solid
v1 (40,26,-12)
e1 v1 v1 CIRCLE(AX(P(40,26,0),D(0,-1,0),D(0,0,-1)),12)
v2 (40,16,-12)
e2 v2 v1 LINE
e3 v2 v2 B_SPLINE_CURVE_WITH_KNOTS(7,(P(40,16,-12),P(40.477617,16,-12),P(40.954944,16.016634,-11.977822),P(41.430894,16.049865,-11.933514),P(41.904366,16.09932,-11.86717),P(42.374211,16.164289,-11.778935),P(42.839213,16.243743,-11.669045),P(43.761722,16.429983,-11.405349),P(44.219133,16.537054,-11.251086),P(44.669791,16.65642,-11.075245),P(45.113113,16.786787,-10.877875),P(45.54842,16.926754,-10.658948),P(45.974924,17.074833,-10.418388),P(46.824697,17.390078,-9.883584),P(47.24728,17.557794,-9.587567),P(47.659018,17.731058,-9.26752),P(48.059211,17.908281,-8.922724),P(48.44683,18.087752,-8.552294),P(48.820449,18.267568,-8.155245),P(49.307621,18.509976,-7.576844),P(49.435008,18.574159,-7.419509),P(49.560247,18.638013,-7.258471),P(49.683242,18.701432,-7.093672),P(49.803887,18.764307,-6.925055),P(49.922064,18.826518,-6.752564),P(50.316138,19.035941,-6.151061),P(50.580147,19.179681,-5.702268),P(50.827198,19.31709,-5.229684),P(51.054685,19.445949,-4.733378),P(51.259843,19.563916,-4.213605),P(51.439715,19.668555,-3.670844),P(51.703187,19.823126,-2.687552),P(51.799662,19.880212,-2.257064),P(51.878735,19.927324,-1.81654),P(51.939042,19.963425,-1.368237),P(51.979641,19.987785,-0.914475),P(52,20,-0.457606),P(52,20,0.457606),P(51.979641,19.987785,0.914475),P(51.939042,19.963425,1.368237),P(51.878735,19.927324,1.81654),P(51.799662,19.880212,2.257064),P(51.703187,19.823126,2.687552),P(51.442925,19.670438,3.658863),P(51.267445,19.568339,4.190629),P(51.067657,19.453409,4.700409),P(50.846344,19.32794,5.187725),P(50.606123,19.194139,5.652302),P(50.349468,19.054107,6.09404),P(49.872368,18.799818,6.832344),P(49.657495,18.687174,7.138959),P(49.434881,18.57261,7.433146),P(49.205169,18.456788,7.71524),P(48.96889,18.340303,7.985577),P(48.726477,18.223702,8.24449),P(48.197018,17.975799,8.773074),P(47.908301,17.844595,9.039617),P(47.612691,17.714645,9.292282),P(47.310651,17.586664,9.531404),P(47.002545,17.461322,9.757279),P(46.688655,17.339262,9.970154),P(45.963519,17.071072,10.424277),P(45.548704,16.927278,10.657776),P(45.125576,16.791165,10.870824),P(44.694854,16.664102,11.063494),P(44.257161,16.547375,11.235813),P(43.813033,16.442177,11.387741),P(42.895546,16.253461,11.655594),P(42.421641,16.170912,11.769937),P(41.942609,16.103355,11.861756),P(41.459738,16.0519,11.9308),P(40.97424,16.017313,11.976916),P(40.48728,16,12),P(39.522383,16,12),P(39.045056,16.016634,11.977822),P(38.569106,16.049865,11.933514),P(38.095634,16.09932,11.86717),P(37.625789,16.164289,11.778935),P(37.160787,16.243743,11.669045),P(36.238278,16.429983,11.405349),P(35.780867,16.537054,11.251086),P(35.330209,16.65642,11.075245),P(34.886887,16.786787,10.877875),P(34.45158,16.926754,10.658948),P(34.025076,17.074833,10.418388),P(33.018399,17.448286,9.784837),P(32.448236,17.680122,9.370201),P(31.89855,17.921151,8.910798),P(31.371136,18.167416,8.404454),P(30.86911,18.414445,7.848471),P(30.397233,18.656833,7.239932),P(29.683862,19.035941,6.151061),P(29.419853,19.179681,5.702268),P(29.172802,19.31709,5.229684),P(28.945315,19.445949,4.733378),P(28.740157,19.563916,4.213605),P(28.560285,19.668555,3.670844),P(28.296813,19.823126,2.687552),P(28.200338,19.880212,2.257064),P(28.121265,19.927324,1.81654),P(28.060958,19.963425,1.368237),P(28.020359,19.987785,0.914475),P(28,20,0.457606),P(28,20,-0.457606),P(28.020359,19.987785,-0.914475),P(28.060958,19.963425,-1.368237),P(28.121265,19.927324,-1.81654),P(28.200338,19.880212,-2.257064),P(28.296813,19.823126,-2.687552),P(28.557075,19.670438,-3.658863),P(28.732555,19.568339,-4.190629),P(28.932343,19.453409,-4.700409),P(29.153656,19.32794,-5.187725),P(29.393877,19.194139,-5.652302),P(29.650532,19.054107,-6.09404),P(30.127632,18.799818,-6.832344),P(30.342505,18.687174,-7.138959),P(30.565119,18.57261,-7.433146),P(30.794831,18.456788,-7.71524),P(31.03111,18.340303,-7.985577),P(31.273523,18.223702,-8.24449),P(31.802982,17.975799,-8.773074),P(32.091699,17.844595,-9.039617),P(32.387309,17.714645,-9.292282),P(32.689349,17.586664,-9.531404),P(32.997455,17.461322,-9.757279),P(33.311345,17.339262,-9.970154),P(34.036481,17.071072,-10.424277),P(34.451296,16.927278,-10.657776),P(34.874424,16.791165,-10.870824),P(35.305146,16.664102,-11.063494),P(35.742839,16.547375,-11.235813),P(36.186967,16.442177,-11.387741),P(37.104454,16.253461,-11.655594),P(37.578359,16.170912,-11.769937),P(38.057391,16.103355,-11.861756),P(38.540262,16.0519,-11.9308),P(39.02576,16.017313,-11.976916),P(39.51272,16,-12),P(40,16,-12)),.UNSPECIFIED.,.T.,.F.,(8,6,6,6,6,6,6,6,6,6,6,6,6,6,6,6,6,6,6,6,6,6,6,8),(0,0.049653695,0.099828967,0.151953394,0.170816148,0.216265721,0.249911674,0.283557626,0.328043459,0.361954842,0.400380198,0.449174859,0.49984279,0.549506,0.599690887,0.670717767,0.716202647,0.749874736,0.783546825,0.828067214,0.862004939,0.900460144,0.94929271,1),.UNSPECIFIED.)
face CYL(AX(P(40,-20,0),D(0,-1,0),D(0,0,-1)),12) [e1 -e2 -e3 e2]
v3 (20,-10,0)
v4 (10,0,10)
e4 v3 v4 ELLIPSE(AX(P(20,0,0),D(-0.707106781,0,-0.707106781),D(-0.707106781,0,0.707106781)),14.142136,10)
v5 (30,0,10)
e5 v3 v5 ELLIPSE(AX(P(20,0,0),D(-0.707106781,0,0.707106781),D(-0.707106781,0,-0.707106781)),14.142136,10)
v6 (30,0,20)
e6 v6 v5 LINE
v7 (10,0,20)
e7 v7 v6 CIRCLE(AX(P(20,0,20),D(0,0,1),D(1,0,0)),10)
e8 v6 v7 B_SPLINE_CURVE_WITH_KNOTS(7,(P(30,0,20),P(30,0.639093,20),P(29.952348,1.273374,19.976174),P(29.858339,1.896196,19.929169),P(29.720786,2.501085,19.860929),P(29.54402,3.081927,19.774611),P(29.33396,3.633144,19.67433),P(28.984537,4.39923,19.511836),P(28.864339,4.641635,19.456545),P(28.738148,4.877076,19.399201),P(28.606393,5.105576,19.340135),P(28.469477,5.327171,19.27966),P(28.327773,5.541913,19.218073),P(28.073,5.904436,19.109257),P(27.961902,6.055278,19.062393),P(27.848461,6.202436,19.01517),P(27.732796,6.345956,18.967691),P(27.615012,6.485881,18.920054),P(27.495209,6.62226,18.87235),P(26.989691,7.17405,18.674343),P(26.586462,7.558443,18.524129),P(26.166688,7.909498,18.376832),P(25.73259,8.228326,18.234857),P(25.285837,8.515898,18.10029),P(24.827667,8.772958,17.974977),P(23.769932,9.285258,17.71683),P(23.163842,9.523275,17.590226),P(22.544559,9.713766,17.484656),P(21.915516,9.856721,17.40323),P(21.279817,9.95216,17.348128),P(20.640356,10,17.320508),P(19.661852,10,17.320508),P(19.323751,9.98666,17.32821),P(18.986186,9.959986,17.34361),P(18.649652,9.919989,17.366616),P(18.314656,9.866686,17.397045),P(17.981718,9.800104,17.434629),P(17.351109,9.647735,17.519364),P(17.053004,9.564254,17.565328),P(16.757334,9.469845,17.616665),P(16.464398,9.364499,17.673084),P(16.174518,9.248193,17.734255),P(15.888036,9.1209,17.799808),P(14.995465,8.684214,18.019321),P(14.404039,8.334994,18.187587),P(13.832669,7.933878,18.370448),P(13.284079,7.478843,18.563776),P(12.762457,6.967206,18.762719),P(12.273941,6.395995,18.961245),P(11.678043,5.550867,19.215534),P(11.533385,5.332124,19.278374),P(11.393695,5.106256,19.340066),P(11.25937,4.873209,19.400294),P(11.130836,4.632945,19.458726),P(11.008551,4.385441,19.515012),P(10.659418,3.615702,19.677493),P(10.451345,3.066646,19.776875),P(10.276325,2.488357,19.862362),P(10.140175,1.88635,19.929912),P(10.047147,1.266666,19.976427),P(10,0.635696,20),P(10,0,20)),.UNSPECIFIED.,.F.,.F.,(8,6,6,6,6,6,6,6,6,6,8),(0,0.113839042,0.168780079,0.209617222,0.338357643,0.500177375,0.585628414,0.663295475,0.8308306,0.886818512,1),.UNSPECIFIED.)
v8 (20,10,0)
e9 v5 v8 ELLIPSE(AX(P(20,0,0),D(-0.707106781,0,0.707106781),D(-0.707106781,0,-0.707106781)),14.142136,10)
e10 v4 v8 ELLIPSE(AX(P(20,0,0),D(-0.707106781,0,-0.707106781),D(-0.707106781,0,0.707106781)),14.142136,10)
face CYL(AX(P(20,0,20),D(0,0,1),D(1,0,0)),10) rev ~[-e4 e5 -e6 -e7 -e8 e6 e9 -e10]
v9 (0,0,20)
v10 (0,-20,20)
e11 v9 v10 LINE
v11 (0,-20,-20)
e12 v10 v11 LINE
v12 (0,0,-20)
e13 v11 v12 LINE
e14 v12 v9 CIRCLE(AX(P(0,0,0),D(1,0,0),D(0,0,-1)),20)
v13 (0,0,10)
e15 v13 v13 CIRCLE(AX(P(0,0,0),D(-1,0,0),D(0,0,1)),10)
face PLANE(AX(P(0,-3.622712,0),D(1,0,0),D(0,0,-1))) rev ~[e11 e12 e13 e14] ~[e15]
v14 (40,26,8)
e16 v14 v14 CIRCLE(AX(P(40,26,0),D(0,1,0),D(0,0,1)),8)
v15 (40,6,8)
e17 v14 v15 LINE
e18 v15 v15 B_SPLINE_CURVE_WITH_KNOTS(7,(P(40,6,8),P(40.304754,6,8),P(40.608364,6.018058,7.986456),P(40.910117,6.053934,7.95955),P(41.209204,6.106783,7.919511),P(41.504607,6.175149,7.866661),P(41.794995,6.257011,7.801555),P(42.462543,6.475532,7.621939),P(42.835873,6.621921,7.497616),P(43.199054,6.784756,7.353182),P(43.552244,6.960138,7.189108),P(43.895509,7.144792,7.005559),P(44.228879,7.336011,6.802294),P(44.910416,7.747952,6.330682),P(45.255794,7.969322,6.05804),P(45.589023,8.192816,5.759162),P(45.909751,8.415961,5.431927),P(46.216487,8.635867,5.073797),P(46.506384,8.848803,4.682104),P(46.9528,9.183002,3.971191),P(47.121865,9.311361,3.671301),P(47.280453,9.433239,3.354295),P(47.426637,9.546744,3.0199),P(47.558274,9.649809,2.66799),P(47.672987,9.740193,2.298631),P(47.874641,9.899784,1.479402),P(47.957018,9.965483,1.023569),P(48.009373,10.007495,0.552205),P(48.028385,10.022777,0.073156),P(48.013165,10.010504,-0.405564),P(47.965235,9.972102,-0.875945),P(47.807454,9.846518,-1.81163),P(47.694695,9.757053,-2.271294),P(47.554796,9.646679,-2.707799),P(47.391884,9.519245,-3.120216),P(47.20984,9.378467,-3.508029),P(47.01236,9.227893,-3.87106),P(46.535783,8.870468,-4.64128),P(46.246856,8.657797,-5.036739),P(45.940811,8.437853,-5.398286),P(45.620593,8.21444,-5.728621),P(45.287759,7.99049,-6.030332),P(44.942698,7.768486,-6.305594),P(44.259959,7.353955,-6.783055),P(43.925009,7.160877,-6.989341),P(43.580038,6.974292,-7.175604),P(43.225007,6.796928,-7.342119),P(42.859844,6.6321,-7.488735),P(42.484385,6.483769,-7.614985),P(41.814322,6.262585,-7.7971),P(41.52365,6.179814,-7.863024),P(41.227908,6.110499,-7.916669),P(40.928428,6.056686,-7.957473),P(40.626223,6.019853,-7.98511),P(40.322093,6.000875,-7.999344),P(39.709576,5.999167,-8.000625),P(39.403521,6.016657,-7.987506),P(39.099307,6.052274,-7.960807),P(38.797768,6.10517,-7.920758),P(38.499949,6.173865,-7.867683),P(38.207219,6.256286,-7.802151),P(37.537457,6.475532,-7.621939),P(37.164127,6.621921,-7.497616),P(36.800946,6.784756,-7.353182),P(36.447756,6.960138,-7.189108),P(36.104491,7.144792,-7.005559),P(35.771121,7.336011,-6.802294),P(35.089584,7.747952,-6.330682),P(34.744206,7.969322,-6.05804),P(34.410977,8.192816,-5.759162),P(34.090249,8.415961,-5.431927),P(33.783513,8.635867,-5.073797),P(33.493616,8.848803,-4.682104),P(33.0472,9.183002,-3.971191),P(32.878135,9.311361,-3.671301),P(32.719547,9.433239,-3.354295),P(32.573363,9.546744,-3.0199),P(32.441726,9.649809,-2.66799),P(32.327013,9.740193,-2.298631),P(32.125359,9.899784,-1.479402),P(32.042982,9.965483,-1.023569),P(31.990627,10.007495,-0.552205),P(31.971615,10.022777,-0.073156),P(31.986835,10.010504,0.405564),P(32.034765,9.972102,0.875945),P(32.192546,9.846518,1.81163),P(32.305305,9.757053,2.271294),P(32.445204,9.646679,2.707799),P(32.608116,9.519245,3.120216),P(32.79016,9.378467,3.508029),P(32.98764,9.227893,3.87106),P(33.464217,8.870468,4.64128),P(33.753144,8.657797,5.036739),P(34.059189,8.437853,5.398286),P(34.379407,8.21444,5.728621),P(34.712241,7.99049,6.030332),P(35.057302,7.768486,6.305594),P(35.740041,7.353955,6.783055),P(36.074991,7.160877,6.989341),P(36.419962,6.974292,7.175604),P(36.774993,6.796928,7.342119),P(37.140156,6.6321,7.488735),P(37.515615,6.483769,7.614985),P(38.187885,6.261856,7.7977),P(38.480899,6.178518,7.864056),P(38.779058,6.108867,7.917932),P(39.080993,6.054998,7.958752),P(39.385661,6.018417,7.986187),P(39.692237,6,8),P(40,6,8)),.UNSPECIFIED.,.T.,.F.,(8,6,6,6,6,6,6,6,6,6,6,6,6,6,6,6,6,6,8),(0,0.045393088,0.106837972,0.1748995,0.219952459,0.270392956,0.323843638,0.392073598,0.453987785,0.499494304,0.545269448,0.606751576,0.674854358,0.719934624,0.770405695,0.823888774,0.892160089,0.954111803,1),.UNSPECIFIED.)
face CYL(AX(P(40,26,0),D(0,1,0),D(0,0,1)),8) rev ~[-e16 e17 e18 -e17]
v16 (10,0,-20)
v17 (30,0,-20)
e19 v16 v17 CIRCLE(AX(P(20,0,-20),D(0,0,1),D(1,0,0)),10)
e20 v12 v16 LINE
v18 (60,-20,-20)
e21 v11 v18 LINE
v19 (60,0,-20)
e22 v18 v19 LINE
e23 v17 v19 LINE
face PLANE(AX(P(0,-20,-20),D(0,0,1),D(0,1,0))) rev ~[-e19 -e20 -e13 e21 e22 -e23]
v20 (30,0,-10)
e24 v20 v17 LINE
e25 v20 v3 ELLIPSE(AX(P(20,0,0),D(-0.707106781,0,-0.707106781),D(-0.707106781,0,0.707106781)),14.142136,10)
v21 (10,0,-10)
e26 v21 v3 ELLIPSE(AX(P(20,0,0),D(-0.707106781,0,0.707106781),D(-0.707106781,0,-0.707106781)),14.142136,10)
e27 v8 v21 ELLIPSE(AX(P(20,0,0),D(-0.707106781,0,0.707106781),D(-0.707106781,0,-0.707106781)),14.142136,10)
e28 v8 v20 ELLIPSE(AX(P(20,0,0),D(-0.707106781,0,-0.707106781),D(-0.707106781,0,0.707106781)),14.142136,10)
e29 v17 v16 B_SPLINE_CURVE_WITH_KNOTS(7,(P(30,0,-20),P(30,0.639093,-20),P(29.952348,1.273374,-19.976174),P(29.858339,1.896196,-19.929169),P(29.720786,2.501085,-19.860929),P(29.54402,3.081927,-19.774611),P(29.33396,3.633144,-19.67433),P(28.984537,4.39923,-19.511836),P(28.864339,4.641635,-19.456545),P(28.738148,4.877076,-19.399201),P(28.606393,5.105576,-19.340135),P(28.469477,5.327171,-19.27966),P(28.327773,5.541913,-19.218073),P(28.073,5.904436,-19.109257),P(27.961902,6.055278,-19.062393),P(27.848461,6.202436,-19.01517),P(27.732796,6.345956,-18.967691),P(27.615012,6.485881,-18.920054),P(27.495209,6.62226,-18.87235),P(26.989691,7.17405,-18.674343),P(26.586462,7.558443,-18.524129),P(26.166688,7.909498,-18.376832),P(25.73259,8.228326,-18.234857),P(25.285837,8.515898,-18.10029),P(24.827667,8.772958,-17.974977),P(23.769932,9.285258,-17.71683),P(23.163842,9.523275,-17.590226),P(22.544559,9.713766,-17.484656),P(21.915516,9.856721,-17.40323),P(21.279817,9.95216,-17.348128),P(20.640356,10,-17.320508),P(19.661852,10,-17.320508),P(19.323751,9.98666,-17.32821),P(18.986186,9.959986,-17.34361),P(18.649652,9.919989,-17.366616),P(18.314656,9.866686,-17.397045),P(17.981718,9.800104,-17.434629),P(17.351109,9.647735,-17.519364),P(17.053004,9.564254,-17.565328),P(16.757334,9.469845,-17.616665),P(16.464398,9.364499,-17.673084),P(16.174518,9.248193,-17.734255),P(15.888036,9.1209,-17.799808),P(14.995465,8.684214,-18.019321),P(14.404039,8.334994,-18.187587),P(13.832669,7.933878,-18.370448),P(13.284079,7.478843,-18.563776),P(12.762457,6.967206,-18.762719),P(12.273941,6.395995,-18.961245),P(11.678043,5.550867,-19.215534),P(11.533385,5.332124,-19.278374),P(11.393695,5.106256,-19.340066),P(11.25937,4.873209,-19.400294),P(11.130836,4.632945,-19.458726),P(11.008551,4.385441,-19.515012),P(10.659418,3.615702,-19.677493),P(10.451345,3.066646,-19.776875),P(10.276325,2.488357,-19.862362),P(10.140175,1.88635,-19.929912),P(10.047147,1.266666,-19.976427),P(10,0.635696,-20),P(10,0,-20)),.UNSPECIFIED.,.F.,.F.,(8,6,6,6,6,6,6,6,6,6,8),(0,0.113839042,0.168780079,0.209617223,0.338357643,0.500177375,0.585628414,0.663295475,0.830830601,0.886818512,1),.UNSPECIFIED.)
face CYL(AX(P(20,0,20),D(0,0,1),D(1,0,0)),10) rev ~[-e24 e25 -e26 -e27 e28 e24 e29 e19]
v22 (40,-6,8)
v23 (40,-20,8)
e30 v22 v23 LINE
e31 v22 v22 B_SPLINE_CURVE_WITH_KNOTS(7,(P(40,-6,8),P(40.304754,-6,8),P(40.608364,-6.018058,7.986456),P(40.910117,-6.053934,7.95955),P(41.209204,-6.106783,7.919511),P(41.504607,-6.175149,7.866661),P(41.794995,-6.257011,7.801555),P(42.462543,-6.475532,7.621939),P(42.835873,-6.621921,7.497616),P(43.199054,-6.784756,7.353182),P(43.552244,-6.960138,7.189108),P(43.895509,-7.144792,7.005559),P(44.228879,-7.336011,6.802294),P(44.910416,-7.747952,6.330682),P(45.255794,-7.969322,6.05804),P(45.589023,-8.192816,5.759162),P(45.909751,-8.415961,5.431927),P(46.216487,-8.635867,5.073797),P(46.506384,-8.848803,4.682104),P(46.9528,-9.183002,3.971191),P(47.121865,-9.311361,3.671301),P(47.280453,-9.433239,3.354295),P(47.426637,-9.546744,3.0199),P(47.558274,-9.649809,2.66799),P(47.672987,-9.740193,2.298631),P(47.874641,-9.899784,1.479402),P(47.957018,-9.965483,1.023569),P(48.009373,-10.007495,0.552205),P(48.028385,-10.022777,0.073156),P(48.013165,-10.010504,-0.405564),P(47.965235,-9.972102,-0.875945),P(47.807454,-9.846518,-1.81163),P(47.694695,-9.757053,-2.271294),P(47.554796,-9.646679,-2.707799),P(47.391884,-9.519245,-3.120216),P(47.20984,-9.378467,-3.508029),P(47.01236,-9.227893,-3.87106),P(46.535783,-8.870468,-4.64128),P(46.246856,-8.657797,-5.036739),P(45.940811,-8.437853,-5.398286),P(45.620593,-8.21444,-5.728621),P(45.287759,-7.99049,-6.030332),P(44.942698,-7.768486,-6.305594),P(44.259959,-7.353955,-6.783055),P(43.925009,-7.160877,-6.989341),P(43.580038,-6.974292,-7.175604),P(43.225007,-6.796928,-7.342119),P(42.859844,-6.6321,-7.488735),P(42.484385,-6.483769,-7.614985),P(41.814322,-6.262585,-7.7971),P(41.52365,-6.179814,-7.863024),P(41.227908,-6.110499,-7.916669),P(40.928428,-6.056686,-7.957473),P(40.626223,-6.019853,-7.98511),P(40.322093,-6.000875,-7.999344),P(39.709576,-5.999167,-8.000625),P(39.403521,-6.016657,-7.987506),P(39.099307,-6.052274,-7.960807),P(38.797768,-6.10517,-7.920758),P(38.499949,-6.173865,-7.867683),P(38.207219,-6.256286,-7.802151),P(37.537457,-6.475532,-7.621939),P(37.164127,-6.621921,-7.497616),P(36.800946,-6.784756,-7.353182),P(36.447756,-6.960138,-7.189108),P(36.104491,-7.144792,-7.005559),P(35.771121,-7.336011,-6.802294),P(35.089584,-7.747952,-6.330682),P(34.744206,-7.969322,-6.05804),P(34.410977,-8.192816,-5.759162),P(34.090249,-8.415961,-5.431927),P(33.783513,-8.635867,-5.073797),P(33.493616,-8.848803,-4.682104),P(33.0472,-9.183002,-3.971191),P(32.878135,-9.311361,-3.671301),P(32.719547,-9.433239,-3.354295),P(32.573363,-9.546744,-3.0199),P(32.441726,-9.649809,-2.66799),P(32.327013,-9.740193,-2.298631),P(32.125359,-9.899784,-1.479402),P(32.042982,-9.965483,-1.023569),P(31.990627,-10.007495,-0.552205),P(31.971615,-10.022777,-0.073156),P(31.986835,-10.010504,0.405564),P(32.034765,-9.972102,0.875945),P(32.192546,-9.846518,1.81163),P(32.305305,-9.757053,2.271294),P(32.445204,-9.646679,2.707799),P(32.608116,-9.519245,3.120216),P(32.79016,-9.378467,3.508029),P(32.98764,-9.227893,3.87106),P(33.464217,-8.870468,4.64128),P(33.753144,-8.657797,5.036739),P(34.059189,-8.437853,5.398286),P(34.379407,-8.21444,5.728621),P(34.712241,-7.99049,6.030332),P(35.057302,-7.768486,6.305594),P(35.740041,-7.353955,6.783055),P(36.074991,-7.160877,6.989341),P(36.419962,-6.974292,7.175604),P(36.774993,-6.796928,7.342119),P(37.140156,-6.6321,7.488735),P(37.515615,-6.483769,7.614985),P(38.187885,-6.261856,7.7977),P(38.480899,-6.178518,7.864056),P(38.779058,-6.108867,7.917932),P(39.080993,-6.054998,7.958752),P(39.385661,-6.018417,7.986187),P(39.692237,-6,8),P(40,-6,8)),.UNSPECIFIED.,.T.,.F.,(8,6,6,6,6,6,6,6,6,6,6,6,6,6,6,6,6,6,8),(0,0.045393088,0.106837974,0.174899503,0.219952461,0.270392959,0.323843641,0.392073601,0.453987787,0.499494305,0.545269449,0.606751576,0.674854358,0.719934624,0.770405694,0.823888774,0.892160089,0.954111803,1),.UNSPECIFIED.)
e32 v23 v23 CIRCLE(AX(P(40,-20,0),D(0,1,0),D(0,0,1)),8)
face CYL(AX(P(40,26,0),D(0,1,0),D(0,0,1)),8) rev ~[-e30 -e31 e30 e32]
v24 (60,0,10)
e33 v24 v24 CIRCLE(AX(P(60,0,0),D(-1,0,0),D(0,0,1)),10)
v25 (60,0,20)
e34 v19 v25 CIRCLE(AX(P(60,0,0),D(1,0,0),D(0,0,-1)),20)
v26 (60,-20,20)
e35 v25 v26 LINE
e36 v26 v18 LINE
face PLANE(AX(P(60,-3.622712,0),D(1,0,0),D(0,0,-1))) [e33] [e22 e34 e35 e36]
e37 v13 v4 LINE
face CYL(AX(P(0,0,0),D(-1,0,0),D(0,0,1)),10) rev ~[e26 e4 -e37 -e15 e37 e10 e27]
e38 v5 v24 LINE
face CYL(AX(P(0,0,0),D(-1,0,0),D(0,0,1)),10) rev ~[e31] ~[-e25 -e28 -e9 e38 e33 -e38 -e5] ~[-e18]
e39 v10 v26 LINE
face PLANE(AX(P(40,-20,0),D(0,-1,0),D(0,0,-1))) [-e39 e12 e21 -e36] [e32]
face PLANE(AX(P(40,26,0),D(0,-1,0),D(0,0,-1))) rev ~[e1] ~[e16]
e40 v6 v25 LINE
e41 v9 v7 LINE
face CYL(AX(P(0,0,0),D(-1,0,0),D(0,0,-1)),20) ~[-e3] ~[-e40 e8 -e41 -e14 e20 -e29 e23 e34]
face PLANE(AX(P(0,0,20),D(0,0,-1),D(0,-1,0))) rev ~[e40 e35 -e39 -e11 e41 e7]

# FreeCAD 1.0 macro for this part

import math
import FreeCAD as App
import Part
import Sketcher

doc = App.newDocument("Part")
body = doc.addObject("PartDesign::Body", "Body")

sketch1 = body.newObject("Sketcher::SketchObject", "Sketch")
sketch1.AttachmentSupport = (doc.getObject("YZ_Plane"), [""])
sketch1.MapMode = "FlatFace"
sketch1.addGeometry(Part.LineSegment(App.Vector(0, 20, 0), App.Vector(-20, 20, 0)), False)
sketch1.addGeometry(Part.LineSegment(App.Vector(-20, 20, 0), App.Vector(-20, -20, 0)), False)
sketch1.addGeometry(Part.LineSegment(App.Vector(-20, -20, 0), App.Vector(0, -20, 0)), False)
sketch1.addGeometry(Part.ArcOfCircle(Part.Circle(App.Vector(0, 0, 0), App.Vector(0, 0, 1), 20), math.radians(-90), math.radians(90)), False)
sketch1.addConstraint(Sketcher.Constraint("Coincident", 0, 2, 1, 1))
sketch1.addConstraint(Sketcher.Constraint("Coincident", 1, 2, 2, 1))
sketch1.addConstraint(Sketcher.Constraint("Tangent", 2, 2, 3, 1))
sketch1.addConstraint(Sketcher.Constraint("Tangent", 3, 2, 0, 1))
sketch1.addConstraint(Sketcher.Constraint("Horizontal", 0))
sketch1.addConstraint(Sketcher.Constraint("Vertical", 1))
sketch1.addConstraint(Sketcher.Constraint("Horizontal", 2))
sketch1.addConstraint(Sketcher.Constraint("Coincident", 3, 3, -1, 1))
sketch1.addConstraint(Sketcher.Constraint("Radius", 3, 20.0))
sketch1.addConstraint(Sketcher.Constraint("DistanceX", 0, 2, 0, 1, 20.0))
pad1 = body.newObject("PartDesign::Pad", "Pad")
pad1.Profile = sketch1
pad1.Length = 60

sketch2 = body.newObject("Sketcher::SketchObject", "Sketch001")
sketch2.AttachmentSupport = (doc.getObject("XZ_Plane"), [""])
sketch2.MapMode = "FlatFace"
sketch2.AttachmentOffset = App.Placement(App.Vector(0, 0, 20), App.Rotation())
sketch2.addGeometry(Part.Circle(App.Vector(40, 0, 0), App.Vector(0, 0, 1), 12), False)
sketch2.addConstraint(Sketcher.Constraint("PointOnObject", 0, 3, -1))
sketch2.addConstraint(Sketcher.Constraint("Diameter", 0, 24.0))
sketch2.addConstraint(Sketcher.Constraint("DistanceX", -1, 1, 0, 3, 40.0))
pad2 = body.newObject("PartDesign::Pad", "Pad001")
pad2.Profile = sketch2
pad2.Length = 46
pad2.Reversed = True

sketch3 = body.newObject("Sketcher::SketchObject", "Sketch002")
sketch3.AttachmentSupport = (doc.getObject("YZ_Plane"), [""])
sketch3.MapMode = "FlatFace"
sketch3.addGeometry(Part.Circle(App.Vector(0, 0, 0), App.Vector(0, 0, 1), 10), False)
sketch3.addConstraint(Sketcher.Constraint("Coincident", 0, 3, -1, 1))
sketch3.addConstraint(Sketcher.Constraint("Diameter", 0, 20.0))
pocket1 = body.newObject("PartDesign::Pocket", "Pocket")
pocket1.Profile = sketch3
pocket1.Type = "ThroughAll"
pocket1.Reversed = True

sketch4 = body.newObject("Sketcher::SketchObject", "Sketch003")
sketch4.AttachmentSupport = (doc.getObject("XZ_Plane"), [""])
sketch4.MapMode = "FlatFace"
sketch4.AttachmentOffset = App.Placement(App.Vector(0, 0, -26), App.Rotation())
sketch4.addGeometry(Part.Circle(App.Vector(40, 0, 0), App.Vector(0, 0, 1), 8), False)
sketch4.addConstraint(Sketcher.Constraint("PointOnObject", 0, 3, -1))
sketch4.addConstraint(Sketcher.Constraint("Diameter", 0, 16.0))
sketch4.addConstraint(Sketcher.Constraint("DistanceX", -1, 1, 0, 3, 40.0))
pocket2 = body.newObject("PartDesign::Pocket", "Pocket001")
pocket2.Profile = sketch4
pocket2.Type = "ThroughAll"
pocket2.Reversed = True

sketch5 = body.newObject("Sketcher::SketchObject", "Sketch004")
sketch5.AttachmentSupport = (doc.getObject("XY_Plane"), [""])
sketch5.MapMode = "FlatFace"
sketch5.AttachmentOffset = App.Placement(App.Vector(0, 0, 20), App.Rotation())
sketch5.addGeometry(Part.Circle(App.Vector(20, 0, 0), App.Vector(0, 0, 1), 10), False)
sketch5.addConstraint(Sketcher.Constraint("PointOnObject", 0, 3, -1))
sketch5.addConstraint(Sketcher.Constraint("Diameter", 0, 20.0))
sketch5.addConstraint(Sketcher.Constraint("DistanceX", -1, 1, 0, 3, 20.0))
pocket3 = body.newObject("PartDesign::Pocket", "Pocket002")
pocket3.Profile = sketch5
pocket3.Type = "ThroughAll"

doc.recompute()
